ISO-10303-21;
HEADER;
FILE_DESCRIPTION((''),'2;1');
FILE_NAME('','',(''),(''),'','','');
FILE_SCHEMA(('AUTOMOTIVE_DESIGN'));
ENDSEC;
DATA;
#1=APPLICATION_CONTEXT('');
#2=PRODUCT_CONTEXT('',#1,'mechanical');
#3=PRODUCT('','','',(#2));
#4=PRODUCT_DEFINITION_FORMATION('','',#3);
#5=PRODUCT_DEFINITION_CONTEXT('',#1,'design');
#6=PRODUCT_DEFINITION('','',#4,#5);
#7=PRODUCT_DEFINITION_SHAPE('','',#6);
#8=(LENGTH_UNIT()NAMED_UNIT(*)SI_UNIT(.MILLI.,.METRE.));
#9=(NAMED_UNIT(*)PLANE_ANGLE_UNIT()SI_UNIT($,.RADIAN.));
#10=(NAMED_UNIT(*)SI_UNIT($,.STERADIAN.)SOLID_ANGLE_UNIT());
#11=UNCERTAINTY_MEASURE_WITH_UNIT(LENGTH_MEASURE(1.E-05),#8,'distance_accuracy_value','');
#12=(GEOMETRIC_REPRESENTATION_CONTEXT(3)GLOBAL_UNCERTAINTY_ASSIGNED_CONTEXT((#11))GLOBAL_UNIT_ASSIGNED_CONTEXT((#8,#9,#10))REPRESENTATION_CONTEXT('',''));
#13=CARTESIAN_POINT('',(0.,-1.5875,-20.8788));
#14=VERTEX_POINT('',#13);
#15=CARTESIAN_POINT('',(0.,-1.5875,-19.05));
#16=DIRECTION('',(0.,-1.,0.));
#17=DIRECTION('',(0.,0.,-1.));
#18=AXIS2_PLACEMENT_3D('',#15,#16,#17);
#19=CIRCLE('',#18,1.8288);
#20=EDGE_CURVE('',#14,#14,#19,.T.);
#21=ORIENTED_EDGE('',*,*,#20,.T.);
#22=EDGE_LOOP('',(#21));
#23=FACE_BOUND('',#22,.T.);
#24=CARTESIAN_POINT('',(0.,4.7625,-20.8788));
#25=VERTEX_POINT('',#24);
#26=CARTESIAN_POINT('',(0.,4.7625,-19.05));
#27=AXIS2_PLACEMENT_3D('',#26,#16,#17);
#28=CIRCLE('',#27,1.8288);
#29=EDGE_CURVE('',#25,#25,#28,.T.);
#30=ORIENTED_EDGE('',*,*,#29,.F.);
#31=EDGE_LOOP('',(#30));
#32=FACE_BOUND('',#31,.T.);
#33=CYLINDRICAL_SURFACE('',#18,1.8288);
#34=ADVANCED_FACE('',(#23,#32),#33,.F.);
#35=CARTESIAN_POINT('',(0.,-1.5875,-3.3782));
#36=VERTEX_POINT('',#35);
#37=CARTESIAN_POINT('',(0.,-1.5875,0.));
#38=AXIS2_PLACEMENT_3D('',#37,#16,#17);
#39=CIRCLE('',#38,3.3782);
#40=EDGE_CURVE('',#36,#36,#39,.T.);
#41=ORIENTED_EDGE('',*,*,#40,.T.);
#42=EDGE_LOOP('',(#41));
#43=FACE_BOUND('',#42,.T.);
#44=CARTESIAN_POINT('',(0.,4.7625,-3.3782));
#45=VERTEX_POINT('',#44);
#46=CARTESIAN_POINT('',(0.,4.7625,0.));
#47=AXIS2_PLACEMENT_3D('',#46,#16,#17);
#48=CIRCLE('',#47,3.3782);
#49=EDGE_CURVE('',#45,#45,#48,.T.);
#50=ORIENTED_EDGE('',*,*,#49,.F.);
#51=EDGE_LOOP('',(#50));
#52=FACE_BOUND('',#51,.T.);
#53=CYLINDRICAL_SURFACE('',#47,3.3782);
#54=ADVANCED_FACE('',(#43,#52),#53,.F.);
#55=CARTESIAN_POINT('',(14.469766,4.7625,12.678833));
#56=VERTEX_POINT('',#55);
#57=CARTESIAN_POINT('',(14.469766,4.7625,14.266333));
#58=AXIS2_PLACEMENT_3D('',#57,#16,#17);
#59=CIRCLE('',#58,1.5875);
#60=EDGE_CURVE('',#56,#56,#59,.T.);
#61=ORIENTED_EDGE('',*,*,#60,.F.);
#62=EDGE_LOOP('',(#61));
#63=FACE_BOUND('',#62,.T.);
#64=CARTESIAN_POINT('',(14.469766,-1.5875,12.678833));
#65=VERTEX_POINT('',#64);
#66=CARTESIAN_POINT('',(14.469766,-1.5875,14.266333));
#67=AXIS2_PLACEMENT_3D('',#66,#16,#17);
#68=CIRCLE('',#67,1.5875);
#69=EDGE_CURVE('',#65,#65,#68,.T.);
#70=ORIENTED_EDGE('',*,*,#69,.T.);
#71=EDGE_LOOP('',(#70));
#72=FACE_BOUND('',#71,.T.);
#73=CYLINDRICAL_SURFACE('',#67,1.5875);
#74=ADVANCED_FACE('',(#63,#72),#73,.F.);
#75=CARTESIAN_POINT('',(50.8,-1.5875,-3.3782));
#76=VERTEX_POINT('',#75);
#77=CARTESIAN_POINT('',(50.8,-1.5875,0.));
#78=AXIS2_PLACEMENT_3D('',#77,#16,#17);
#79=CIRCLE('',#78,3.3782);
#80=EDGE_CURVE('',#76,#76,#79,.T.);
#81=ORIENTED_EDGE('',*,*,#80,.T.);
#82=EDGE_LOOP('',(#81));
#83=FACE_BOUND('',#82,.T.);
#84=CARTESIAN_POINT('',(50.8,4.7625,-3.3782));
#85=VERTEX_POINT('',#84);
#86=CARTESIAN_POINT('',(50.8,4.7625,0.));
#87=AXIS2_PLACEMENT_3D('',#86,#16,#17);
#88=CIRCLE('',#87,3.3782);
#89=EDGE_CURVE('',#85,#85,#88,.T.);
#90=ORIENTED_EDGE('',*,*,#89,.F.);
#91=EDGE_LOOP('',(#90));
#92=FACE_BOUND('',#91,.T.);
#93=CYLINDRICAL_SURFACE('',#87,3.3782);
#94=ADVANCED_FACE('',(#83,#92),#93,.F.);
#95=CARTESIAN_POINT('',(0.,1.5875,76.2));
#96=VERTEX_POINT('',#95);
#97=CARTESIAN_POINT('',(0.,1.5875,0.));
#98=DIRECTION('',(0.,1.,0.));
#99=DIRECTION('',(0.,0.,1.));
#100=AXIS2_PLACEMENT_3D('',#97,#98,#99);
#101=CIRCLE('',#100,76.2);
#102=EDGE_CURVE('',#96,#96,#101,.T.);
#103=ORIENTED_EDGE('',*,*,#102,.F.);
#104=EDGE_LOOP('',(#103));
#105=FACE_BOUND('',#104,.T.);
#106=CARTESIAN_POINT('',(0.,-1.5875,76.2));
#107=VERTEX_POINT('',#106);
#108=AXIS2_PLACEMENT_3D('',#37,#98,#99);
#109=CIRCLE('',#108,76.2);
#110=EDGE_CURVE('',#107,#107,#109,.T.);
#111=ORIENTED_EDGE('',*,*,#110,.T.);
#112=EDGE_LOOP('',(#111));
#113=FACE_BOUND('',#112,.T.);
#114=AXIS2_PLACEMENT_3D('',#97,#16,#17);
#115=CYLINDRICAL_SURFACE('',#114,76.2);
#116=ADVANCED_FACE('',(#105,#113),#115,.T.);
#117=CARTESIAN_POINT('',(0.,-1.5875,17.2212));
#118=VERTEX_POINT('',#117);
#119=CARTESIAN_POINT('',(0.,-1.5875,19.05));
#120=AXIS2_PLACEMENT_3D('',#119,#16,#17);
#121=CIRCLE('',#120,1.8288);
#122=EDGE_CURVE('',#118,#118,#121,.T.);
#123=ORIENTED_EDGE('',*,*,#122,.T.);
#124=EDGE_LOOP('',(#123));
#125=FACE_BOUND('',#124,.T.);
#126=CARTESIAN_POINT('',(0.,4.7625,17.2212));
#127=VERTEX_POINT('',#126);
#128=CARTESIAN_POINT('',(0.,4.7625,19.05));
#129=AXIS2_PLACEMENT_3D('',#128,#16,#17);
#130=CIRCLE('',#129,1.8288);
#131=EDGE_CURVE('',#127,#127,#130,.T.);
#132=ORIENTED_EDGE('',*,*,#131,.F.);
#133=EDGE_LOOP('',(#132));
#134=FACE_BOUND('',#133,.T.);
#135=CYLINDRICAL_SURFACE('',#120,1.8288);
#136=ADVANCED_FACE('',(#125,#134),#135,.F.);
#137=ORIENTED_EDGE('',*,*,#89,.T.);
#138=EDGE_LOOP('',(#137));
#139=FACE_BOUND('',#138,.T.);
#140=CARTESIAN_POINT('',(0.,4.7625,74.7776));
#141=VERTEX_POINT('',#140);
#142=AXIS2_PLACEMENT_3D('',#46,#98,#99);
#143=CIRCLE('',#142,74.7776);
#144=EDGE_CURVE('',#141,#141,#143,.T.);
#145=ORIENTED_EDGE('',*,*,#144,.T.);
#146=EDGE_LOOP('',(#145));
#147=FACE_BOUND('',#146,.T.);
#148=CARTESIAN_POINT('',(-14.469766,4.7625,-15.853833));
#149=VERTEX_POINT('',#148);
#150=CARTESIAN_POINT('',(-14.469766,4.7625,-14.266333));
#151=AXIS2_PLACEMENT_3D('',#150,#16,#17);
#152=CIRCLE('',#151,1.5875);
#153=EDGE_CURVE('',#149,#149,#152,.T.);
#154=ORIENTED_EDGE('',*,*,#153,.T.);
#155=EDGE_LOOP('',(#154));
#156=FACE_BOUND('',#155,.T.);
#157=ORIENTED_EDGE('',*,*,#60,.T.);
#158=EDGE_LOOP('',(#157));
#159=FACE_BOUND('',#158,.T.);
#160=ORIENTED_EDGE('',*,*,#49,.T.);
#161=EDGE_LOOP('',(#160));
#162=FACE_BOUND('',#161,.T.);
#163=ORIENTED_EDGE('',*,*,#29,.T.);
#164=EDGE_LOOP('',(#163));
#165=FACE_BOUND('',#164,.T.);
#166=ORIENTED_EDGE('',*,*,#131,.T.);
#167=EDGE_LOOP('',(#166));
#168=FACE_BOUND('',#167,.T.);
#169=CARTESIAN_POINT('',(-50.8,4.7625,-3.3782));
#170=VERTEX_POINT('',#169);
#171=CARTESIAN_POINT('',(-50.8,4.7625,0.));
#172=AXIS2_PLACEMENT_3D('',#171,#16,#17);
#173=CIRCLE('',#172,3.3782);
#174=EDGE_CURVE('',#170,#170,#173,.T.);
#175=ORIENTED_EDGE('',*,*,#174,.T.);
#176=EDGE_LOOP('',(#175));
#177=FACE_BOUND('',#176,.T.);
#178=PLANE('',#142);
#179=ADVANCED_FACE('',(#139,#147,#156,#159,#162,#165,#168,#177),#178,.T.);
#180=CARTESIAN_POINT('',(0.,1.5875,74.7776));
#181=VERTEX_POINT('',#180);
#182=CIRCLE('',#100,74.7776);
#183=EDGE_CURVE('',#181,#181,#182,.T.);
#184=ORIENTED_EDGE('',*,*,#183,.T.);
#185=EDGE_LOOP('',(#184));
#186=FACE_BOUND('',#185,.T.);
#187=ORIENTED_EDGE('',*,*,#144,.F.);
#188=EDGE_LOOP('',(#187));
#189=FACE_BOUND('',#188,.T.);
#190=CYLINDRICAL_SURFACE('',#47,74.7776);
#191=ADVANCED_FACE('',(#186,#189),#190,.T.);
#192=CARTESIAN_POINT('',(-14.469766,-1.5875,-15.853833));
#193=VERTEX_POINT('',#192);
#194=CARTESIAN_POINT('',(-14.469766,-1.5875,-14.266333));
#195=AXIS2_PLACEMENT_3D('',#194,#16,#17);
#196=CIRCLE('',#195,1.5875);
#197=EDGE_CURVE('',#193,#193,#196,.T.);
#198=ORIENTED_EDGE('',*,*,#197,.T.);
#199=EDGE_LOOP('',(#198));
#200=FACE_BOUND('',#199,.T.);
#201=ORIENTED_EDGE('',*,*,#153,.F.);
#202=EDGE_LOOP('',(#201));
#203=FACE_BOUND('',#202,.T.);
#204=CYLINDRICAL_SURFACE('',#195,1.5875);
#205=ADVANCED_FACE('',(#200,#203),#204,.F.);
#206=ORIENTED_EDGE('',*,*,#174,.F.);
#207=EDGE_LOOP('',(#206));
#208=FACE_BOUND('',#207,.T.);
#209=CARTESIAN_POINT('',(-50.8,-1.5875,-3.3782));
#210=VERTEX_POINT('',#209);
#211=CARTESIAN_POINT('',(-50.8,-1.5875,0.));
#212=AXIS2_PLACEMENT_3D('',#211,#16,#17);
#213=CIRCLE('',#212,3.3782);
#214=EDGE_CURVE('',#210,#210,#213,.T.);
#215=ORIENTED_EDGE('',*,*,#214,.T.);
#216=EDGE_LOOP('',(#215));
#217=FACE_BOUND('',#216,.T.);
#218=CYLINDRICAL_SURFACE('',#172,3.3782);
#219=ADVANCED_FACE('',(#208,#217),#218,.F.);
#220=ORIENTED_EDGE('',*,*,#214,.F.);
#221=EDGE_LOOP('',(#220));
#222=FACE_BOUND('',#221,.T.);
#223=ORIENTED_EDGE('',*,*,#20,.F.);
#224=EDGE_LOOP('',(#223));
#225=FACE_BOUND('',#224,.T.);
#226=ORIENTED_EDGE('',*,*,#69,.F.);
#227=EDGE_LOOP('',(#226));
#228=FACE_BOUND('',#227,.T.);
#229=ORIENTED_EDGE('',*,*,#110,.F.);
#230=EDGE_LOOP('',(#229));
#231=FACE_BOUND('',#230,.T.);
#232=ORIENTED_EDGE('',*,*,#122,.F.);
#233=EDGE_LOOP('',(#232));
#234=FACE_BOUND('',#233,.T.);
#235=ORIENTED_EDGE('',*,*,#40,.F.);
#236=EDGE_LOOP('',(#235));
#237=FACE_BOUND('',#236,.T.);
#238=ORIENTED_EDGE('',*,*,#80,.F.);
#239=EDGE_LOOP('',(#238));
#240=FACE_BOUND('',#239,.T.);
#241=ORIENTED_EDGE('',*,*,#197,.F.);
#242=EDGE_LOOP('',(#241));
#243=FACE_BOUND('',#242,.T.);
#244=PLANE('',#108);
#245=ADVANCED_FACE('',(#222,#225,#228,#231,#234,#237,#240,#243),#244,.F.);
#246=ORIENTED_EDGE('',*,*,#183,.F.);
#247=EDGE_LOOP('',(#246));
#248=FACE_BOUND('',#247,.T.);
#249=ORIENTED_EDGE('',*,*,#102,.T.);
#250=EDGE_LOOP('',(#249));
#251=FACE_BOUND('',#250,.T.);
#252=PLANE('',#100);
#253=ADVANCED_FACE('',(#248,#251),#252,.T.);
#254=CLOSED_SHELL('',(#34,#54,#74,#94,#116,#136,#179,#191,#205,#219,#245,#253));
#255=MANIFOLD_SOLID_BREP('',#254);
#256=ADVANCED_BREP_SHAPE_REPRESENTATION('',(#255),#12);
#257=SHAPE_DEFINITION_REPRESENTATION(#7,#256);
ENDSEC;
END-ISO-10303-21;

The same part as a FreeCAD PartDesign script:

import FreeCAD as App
import Part
import Sketcher
Q = App.Units.Quantity

doc = App.newDocument("Part")
body = doc.addObject("PartDesign::Body", "Body")

# Sketch on XZ plane
sketch1 = body.newObject("Sketcher::SketchObject", "Sketch")
sketch1.AttachmentSupport = (doc.getObject("XZ_Plane"), [""])
sketch1.MapMode = "FlatFace"
sketch1.addGeometry(Part.Circle(App.Vector(0, 0, 0), App.Vector(0, 0, 1), 76.2), False)
sketch1.addConstraint([
    Sketcher.Constraint("Coincident", 0, 3, -1, 1),
    Sketcher.Constraint("Diameter", 0, Q("6 in")),
])
pad1 = body.newObject("PartDesign::Pad", "Pad")
pad1.Profile = sketch1
pad1.Length = Q("0.125 in")
pad1.Midplane = True

# Sketch on XZ plane
sketch2 = body.newObject("Sketcher::SketchObject", "Sketch001")
sketch2.AttachmentSupport = (doc.getObject("XZ_Plane"), [""])
sketch2.MapMode = "FlatFace"
sketch2.AttachmentOffset = App.Placement(App.Vector(0, 0, -0.0625 * 25.4), App.Rotation())
sketch2.addGeometry(Part.Circle(App.Vector(0, 0, 0), App.Vector(0, 0, 1), 74.7776), False)
sketch2.addConstraint([
    Sketcher.Constraint("Coincident", 0, 3, -1, 1),
    Sketcher.Constraint("Diameter", 0, Q("5.888 in")),
])
pad2 = body.newObject("PartDesign::Pad", "Pad001")
pad2.Profile = sketch2
pad2.Length = Q("0.125 in")
pad2.Reversed = True

# Sketch on XZ plane
sketch3 = body.newObject("Sketcher::SketchObject", "Sketch002")
sketch3.AttachmentSupport = (doc.getObject("XZ_Plane"), [""])
sketch3.MapMode = "FlatFace"
sketch3.AttachmentOffset = App.Placement(App.Vector(0, 0, 0.0625 * 25.4), App.Rotation())
sketch3.addGeometry([
    Part.Circle(App.Vector(50.8, 0, 0), App.Vector(0, 0, 1), 3.3782),
    Part.Circle(App.Vector(-50.8, 0, 0), App.Vector(0, 0, 1), 3.3782),
    Part.Circle(App.Vector(0, 0, 0), App.Vector(0, 0, 1), 3.3782),
], False)
sketch3.addConstraint([
    Sketcher.Constraint("Coincident", 2, 3, -1, 1),
    Sketcher.Constraint("Equal", 0, 1),
    Sketcher.Constraint("Equal", 1, 2),
    Sketcher.Constraint("Symmetric", 0, 3, 1, 3, -1, 1),
    Sketcher.Constraint("PointOnObject", 0, 3, -1),
    Sketcher.Constraint("Diameter", 0, Q("0.266 in")),
    Sketcher.Constraint("DistanceX", -1, 1, 0, 3, Q("2 in")),
])
pocket1 = body.newObject("PartDesign::Pocket", "Pocket")
pocket1.Profile = sketch3
pocket1.Type = "ThroughAll"

# Sketch on XZ plane
sketch4 = body.newObject("Sketcher::SketchObject", "Sketch003")
sketch4.AttachmentSupport = (doc.getObject("XZ_Plane"), [""])
sketch4.MapMode = "FlatFace"
sketch4.AttachmentOffset = App.Placement(App.Vector(0, 0, 0.0625 * 25.4), App.Rotation())
sketch4.addGeometry([
    Part.Circle(App.Vector(0, -19.05, 0), App.Vector(0, 0, 1), 1.8288),
    Part.Circle(App.Vector(0, 19.05, 0), App.Vector(0, 0, 1), 1.8288),
], False)
sketch4.addConstraint([
    Sketcher.Constraint("Equal", 0, 1),
    Sketcher.Constraint("Symmetric", 0, 3, 1, 3, -1, 1),
    Sketcher.Constraint("PointOnObject", 0, 3, -2),
    Sketcher.Constraint("Diameter", 0, Q("0.144 in")),
    Sketcher.Constraint("DistanceY", 0, 3, 1, 3, Q("1.5 in")),
])
doc.recompute()
hole = body.newObject("PartDesign::Hole", "Hole")
hole.Profile = sketch4
hole.ThreadType = "None"
hole.Diameter = Q("0.144 in")
hole.DepthType = "ThroughAll"

# Sketch on XZ plane
sketch5 = body.newObject("Sketcher::SketchObject", "Sketch004")
sketch5.AttachmentSupport = (doc.getObject("XZ_Plane"), [""])
sketch5.MapMode = "FlatFace"
sketch5.AttachmentOffset = App.Placement(App.Vector(0, 0, 0.0625 * 25.4), App.Rotation())
sketch5.addGeometry([
    Part.Circle(App.Vector(-14.469766, -14.266333, 0), App.Vector(0, 0, 1), 1.5875),
    Part.Circle(App.Vector(14.469766, 14.266333, 0), App.Vector(0, 0, 1), 1.5875),
], False)
sketch5.addConstraint([
    Sketcher.Constraint("Equal", 0, 1),
    Sketcher.Constraint("Symmetric", 0, 3, 1, 3, -1, 1),
    Sketcher.Constraint("Diameter", 0, Q("0.125 in")),
    Sketcher.Constraint("DistanceX", 0, 3, -1, 1, 14.469766),
    Sketcher.Constraint("DistanceY", 0, 3, -1, 1, 14.266333),
])
doc.recompute()
hole2 = body.newObject("PartDesign::Hole", "Hole001")
hole2.Profile = sketch5
hole2.ThreadType = "None"
hole2.Diameter = Q("0.125 in")
hole2.DepthType = "ThroughAll"

doc.recompute()
